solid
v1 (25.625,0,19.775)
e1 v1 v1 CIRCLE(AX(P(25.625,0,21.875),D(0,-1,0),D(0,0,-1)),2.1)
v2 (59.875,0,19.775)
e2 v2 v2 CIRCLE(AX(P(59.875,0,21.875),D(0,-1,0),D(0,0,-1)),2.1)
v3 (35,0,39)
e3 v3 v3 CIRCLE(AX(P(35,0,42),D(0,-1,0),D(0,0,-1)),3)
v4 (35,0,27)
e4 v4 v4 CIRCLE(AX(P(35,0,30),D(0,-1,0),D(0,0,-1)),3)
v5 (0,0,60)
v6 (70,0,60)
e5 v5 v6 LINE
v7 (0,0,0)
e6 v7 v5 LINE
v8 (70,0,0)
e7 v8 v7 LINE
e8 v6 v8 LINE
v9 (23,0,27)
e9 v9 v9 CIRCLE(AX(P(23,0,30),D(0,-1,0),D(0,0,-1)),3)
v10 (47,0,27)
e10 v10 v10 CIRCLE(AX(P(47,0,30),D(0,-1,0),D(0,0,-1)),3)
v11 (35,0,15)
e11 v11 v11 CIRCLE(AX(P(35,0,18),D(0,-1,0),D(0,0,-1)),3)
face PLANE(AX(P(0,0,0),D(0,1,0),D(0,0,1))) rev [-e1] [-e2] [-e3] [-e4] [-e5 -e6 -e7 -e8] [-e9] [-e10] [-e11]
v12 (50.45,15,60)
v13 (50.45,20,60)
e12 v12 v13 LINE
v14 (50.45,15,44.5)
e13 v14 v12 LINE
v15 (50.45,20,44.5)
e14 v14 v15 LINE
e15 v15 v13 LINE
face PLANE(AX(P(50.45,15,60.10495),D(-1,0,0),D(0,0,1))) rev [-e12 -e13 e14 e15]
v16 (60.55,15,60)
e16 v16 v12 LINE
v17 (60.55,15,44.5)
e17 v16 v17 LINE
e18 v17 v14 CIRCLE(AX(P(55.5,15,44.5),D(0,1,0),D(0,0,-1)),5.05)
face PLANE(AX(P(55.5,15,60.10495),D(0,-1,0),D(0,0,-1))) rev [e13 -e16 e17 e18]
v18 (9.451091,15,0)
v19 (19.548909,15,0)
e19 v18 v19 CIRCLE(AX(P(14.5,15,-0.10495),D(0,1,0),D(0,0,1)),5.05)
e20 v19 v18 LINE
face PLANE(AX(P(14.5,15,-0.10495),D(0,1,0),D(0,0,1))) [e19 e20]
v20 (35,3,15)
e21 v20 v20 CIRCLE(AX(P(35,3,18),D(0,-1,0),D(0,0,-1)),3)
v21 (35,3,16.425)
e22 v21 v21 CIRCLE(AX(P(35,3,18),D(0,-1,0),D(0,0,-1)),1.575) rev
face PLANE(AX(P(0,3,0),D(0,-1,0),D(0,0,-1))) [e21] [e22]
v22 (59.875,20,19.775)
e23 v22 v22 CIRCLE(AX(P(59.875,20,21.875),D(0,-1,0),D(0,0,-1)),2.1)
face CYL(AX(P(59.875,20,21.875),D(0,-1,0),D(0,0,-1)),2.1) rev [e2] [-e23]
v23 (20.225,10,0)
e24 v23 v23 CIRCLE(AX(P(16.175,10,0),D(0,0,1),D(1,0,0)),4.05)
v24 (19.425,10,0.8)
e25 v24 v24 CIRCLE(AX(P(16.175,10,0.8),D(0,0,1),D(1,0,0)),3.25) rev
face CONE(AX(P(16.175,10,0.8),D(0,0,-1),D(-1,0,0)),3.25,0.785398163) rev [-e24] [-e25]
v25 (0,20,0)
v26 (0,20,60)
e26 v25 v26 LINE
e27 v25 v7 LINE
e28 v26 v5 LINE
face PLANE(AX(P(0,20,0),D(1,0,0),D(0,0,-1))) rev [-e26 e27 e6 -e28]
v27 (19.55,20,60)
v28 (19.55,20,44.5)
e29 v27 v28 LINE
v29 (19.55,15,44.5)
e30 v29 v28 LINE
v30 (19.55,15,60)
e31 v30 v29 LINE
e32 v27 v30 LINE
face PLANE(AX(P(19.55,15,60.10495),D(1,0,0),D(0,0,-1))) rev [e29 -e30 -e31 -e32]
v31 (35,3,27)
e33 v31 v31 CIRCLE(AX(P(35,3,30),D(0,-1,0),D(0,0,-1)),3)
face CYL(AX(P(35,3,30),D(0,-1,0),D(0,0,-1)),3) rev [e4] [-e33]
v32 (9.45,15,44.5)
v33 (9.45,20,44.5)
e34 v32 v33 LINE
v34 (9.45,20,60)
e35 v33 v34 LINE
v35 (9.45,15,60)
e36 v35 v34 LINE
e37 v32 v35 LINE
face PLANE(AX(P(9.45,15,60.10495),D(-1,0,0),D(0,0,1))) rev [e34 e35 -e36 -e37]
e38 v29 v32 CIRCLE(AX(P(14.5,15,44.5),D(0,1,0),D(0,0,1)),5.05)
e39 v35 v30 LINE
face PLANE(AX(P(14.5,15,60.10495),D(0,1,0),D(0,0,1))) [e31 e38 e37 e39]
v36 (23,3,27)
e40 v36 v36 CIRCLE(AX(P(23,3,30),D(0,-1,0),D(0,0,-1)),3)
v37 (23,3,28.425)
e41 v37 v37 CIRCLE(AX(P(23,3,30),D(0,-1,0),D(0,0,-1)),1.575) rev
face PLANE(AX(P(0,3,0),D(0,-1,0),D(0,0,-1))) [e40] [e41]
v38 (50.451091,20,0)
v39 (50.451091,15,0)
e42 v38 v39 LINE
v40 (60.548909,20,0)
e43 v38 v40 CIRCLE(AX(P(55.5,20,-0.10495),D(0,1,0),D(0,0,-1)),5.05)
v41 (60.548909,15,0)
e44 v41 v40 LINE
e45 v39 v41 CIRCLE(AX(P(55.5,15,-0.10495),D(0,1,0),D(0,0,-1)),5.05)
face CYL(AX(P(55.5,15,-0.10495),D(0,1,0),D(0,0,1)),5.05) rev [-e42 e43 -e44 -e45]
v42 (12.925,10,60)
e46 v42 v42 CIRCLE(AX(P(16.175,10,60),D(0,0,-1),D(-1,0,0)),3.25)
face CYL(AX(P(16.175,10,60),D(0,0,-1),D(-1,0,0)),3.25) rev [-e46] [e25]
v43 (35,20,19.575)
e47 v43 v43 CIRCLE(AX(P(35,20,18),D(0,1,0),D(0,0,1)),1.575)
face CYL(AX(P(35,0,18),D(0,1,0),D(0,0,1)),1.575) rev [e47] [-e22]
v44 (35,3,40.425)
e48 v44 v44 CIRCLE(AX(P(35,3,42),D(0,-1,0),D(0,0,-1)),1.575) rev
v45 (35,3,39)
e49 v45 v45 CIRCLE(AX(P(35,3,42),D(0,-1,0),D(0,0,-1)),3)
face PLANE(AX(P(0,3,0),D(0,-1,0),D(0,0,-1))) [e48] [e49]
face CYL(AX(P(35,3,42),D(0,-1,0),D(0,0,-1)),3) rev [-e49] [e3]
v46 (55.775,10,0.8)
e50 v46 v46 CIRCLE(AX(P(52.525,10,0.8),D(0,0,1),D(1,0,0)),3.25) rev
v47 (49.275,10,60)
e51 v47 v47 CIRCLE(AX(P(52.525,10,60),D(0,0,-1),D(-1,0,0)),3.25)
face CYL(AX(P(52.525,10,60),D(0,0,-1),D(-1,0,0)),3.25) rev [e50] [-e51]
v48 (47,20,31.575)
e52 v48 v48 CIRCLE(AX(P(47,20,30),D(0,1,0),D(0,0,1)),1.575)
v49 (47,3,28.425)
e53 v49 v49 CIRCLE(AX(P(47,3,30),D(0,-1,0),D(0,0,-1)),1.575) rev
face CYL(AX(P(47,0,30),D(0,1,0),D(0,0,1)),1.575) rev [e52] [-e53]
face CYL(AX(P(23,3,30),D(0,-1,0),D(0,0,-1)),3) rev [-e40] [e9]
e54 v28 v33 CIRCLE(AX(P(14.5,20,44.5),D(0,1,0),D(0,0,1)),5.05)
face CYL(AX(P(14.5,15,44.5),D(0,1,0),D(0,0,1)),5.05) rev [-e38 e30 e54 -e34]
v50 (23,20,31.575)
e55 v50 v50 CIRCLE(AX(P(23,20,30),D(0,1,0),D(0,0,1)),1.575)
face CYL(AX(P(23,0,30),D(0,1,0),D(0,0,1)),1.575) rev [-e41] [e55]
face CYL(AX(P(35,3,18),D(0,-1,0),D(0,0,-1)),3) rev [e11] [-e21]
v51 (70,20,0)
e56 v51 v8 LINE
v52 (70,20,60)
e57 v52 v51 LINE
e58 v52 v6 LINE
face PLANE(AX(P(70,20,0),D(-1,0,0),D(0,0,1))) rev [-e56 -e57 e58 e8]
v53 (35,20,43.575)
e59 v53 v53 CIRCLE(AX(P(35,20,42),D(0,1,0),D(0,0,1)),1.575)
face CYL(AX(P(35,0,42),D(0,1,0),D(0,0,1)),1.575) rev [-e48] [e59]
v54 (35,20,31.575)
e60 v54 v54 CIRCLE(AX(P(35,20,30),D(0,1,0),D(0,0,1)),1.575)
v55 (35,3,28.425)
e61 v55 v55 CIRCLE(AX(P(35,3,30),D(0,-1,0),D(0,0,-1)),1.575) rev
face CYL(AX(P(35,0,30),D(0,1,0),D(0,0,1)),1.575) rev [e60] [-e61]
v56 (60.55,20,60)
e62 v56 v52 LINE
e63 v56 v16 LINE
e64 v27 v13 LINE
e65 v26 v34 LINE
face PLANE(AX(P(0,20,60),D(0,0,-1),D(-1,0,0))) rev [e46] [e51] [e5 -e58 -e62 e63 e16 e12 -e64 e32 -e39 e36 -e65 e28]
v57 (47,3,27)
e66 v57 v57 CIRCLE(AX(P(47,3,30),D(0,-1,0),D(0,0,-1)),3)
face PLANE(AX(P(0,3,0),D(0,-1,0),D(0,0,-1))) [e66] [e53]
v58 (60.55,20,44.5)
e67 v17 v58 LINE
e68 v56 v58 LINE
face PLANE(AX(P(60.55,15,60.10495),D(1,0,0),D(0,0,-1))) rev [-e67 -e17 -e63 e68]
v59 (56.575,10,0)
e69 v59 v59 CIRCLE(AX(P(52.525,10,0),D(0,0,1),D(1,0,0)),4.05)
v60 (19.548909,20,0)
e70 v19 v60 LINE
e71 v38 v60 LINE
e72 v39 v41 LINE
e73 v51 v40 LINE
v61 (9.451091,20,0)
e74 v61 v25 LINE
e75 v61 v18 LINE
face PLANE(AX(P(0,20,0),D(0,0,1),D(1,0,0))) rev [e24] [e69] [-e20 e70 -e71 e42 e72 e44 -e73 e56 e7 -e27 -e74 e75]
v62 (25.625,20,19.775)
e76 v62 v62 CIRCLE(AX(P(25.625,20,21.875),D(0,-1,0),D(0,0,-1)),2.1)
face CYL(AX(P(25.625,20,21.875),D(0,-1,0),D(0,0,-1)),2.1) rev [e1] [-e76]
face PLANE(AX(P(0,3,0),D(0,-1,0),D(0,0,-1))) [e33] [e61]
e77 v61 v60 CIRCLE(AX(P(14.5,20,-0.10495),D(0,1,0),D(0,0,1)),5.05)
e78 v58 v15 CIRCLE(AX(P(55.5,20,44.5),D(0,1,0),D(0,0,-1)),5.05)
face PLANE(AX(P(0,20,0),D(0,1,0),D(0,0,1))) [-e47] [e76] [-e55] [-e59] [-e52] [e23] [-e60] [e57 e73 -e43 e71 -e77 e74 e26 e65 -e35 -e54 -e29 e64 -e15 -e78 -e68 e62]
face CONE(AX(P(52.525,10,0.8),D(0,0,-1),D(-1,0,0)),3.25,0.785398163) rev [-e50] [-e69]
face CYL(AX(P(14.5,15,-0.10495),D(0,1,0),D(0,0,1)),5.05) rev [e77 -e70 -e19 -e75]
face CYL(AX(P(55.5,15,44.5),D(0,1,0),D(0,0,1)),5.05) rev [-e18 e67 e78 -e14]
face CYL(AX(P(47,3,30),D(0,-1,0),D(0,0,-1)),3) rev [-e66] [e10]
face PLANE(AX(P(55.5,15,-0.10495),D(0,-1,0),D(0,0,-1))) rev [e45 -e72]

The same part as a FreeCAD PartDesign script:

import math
import FreeCAD as App
import Part
import Sketcher
from FreeCAD import Vector
Q = App.Units.Quantity


def edges_at(feature, points):
    """Names of the edges that pass closest to the given points."""
    edges = feature.Shape.Edges
    near = lambda p: min(range(len(edges)), key=lambda i: edges[i].distToShape(Part.Vertex(*p))[0])
    return sorted({f"Edge{near(p) + 1}" for p in points})


def add_polygon(sketch, points):
    """Adds a closed chain of lines whose ends are joined by coincident constraints."""
    first, n = sketch.GeometryCount, len(points)
    for a, b in zip(points, points[1:] + points[:1]):
        sketch.addGeometry(Part.LineSegment(App.Vector(*a, 0), App.Vector(*b, 0)), False)
    for i in range(n):
        sketch.addConstraint(Sketcher.Constraint("Coincident", first + i, 2, first + (i + 1) % n, 1))

doc = App.newDocument("Part")
body = doc.addObject("PartDesign::Body", "Body")

# Sketch on XZ plane
sketch1 = doc.addObject("Sketcher::SketchObject", "Sketch")
body.addObject(sketch1)
sketch1.AttachmentSupport = (doc.XZ_Plane, [""])
sketch1.MapMode = "FlatFace"
add_polygon(sketch1, [(0, 0), (0, 60), (70, 60), (70, 0)])  # lines 0-3
sketch1.addConstraint([
    Sketcher.Constraint("Vertical", 0),
    Sketcher.Constraint("Horizontal", 1),
    Sketcher.Constraint("Vertical", 2),
    Sketcher.Constraint("Horizontal", 3),
    Sketcher.Constraint("Coincident", 3, 2, -1, 1),
    Sketcher.Constraint("DistanceX", 1, 1, 1, 2, Q("70 mm")),
    Sketcher.Constraint("DistanceY", 0, 1, 0, 2, Q("60 mm")),
])
pad1 = doc.addObject("PartDesign::Pad", "Pad")
body.addObject(pad1)
pad1.Profile = sketch1
pad1.Length = 20
pad1.Reversed = True

# Sketch on XZ plane
sketch2 = doc.addObject("Sketcher::SketchObject", "Sketch001")
body.addObject(sketch2)
sketch2.AttachmentSupport = (doc.XZ_Plane, [""])
sketch2.MapMode = "FlatFace"
sketch2.AttachmentOffset = App.Placement(Vector(0, 0, -20), App.Rotation())
sketch2.addGeometry([
    Part.Circle(Vector(35, 30, 0), Vector(0, 0, 1), 1.6),  # 0
    Part.Circle(Vector(35, 18, 0), Vector(0, 0, 1), 1.6),  # 1
    Part.Circle(Vector(47, 30, 0), Vector(0, 0, 1), 1.6),  # 2
    Part.Circle(Vector(35, 42, 0), Vector(0, 0, 1), 1.6),  # 3
    Part.Circle(Vector(23, 30, 0), Vector(0, 0, 1), 1.6),  # 4
], False)
sketch2.addConstraint([
    Sketcher.Constraint("Equal", 0, 1),
    Sketcher.Constraint("Equal", 1, 2),
    Sketcher.Constraint("Equal", 2, 3),
    Sketcher.Constraint("Equal", 3, 4),
    Sketcher.Constraint("Horizontal", 0, 3, 2, 3),
    Sketcher.Constraint("Horizontal", 2, 3, 4, 3),
    Sketcher.Constraint("Vertical", 0, 3, 1, 3),
    Sketcher.Constraint("Vertical", 1, 3, 3, 3),
    Sketcher.Constraint("Diameter", 0, Q("3.15 mm")),
    Sketcher.Constraint("DistanceX", -1, 1, 0, 3, Q("35 mm")),
    Sketcher.Constraint("DistanceY", -1, 1, 0, 3, Q("30 mm")),
    Sketcher.Constraint("DistanceY", -1, 1, 1, 3, Q("18 mm")),
    Sketcher.Constraint("DistanceX", -1, 1, 2, 3, Q("47 mm")),
    Sketcher.Constraint("DistanceY", -1, 1, 3, 3, Q("42 mm")),
    Sketcher.Constraint("DistanceX", -1, 1, 4, 3, Q("23 mm")),
])
pocket1 = doc.addObject("PartDesign::Pocket", "Pocket")
body.addObject(pocket1)
pocket1.Profile = sketch2
pocket1.Type = "ThroughAll"
pocket1.Reversed = True

# Sketch on XZ plane
sketch3 = doc.addObject("Sketcher::SketchObject", "Sketch002")
body.addObject(sketch3)
sketch3.AttachmentSupport = (doc.XZ_Plane, [""])
sketch3.MapMode = "FlatFace"
sketch3.addGeometry([
    Part.Circle(Vector(59.9, 21.9, 0), Vector(0, 0, 1), 2.1),
    Part.Circle(Vector(25.6, 21.9, 0), Vector(0, 0, 1), 2.1),
], False)
sketch3.addConstraint([
    Sketcher.Constraint("Equal", 0, 1),
    Sketcher.Constraint("Horizontal", 0, 3, 1, 3),
    Sketcher.Constraint("Diameter", 0, Q("4.2 mm")),
    Sketcher.Constraint("DistanceX", 1, 3, 0, 3, Q("34.25 mm")),
    Sketcher.Constraint("DistanceX", -1, 1, 0, 3, Q("59.875 mm")),
    Sketcher.Constraint("DistanceY", -1, 1, 0, 3, Q("21.875 mm")),
])
pocket2 = doc.addObject("PartDesign::Pocket", "Pocket001")
body.addObject(pocket2)
pocket2.Profile = sketch3
pocket2.Type = "ThroughAll"

# Sketch on XY plane
sketch4 = doc.addObject("Sketcher::SketchObject", "Sketch003")
body.addObject(sketch4)
sketch4.AttachmentSupport = (doc.XY_Plane, [""])
sketch4.MapMode = "FlatFace"
sketch4.addGeometry([
    Part.Circle(Vector(52.5, 10, 0), Vector(0, 0, 1), 3.2),
    Part.Circle(Vector(16.2, 10, 0), Vector(0, 0, 1), 3.2),
], False)
sketch4.addConstraint([
    Sketcher.Constraint("Equal", 0, 1),
    Sketcher.Constraint("Horizontal", 0, 3, 1, 3),
    Sketcher.Constraint("Diameter", 0, Q("6.5 mm")),
    Sketcher.Constraint("DistanceY", -1, 1, 0, 3, Q("10 mm")),
    Sketcher.Constraint("DistanceX", 1, 3, 0, 3, Q("36.35 mm")),
    Sketcher.Constraint("DistanceX", -1, 1, 0, 3, Q("52.525 mm")),
])
pocket3 = doc.addObject("PartDesign::Pocket", "Pocket002")
body.addObject(pocket3)
pocket3.Profile = sketch4
pocket3.Type = "ThroughAll"
pocket3.Reversed = True

# Sketch on XZ plane
sketch5 = doc.addObject("Sketcher::SketchObject", "Sketch004")
body.addObject(sketch5)
sketch5.AttachmentSupport = (doc.XZ_Plane, [""])
sketch5.MapMode = "FlatFace"
sketch5.AttachmentOffset = App.Placement(Vector(0, 0, -3), App.Rotation())
sketch5.addGeometry([
    Part.Circle(Vector(35, 18, 0), Vector(0, 0, 1), 3),  # 0
    Part.Circle(Vector(35, 30, 0), Vector(0, 0, 1), 3),  # 1
    Part.Circle(Vector(47, 30, 0), Vector(0, 0, 1), 3),  # 2
    Part.Circle(Vector(23, 30, 0), Vector(0, 0, 1), 3),  # 3
    Part.Circle(Vector(35, 42, 0), Vector(0, 0, 1), 3),  # 4
], False)
sketch5.addConstraint([
    Sketcher.Constraint("Equal", 0, 1),
    Sketcher.Constraint("Equal", 1, 2),
    Sketcher.Constraint("Equal", 2, 3),
    Sketcher.Constraint("Equal", 3, 4),
    Sketcher.Constraint("Horizontal", 1, 3, 2, 3),
    Sketcher.Constraint("Horizontal", 2, 3, 3, 3),
    Sketcher.Constraint("Vertical", 0, 3, 1, 3),
    Sketcher.Constraint("Vertical", 1, 3, 4, 3),
    Sketcher.Constraint("Diameter", 0, Q("6 mm")),
    Sketcher.Constraint("DistanceX", -1, 1, 0, 3, Q("35 mm")),
    Sketcher.Constraint("DistanceY", -1, 1, 0, 3, Q("18 mm")),
    Sketcher.Constraint("DistanceY", -1, 1, 1, 3, Q("30 mm")),
    Sketcher.Constraint("DistanceX", -1, 1, 2, 3, Q("47 mm")),
    Sketcher.Constraint("DistanceX", -1, 1, 3, 3, Q("23 mm")),
    Sketcher.Constraint("DistanceY", -1, 1, 4, 3, Q("42 mm")),
])
pocket4 = doc.addObject("PartDesign::Pocket", "Pocket003")
body.addObject(pocket4)
pocket4.Profile = sketch5
pocket4.Length = 3
pocket4.Reversed = True
doc.recompute()

chamfer = doc.addObject("PartDesign::Chamfer", "Chamfer")
body.addObject(chamfer)
chamfer.Base = (pocket4, edges_at(pocket4, [(55.775, 10, 0), (19.425, 10, 0)]))
chamfer.Size = 0.8

# Sketch on XZ plane
sketch6 = doc.addObject("Sketcher::SketchObject", "Sketch005")
body.addObject(sketch6)
sketch6.AttachmentSupport = (doc.XZ_Plane, [""])
sketch6.MapMode = "FlatFace"
sketch6.AttachmentOffset = App.Placement(Vector(0, 0, -20), App.Rotation())
sketch6.addGeometry([
    Part.Circle(Vector(14, 0, 0), Vector(0, 0, 1), 5),  # 0
    Part.Circle(Vector(56, 0, 0), Vector(0, 0, 1), 5),  # 1
    Part.LineSegment(Vector(9, 44, 0), Vector(9, 60, 0)),  # 2
    Part.ArcOfCircle(Part.Circle(Vector(14, 60, 0), Vector(0, 0, 1), 5), math.radians(0), math.radians(180)),  # 3
    Part.LineSegment(Vector(20, 60, 0), Vector(20, 44, 0)),  # 4
    Part.ArcOfCircle(Part.Circle(Vector(14, 44, 0), Vector(0, 0, 1), 5), math.radians(180), math.radians(360)),  # 5
    Part.LineSegment(Vector(61, 60, 0), Vector(61, 44, 0)),  # 6
    Part.ArcOfCircle(Part.Circle(Vector(56, 44, 0), Vector(0, 0, 1), 5), math.radians(180), math.radians(360)),  # 7
    Part.LineSegment(Vector(50, 44, 0), Vector(50, 60, 0)),  # 8
    Part.ArcOfCircle(Part.Circle(Vector(56, 60, 0), Vector(0, 0, 1), 5), math.radians(0), math.radians(180)),  # 9
], False)
sketch6.addConstraint([
    Sketcher.Constraint("Tangent", 2, 2, 3, 2),
    Sketcher.Constraint("Tangent", 3, 1, 4, 1),
    Sketcher.Constraint("Tangent", 4, 2, 5, 2),
    Sketcher.Constraint("Tangent", 5, 1, 2, 1),
    Sketcher.Constraint("Tangent", 6, 2, 7, 2),
    Sketcher.Constraint("Tangent", 7, 1, 8, 1),
    Sketcher.Constraint("Tangent", 8, 2, 9, 2),
    Sketcher.Constraint("Tangent", 9, 1, 6, 1),
    Sketcher.Constraint("Vertical", 2),
    Sketcher.Constraint("Vertical", 4),
    Sketcher.Constraint("Vertical", 6),
    Sketcher.Constraint("Vertical", 8),
    Sketcher.Constraint("Equal", 0, 1),
    Sketcher.Constraint("Equal", 1, 3),
    Sketcher.Constraint("Equal", 5, 7),
    Sketcher.Constraint("Horizontal", 0, 3, 1, 3),
    Sketcher.Constraint("Horizontal", 5, 3, 7, 3),
    Sketcher.Constraint("Horizontal", 3, 3, 9, 3),
    Sketcher.Constraint("Vertical", 0, 3, 3, 3),
    Sketcher.Constraint("Vertical", 1, 3, 7, 3),
    Sketcher.Constraint("Diameter", 0, Q("10.1 mm")),
    Sketcher.Constraint("DistanceX", 0, 3, 1, 3, Q("41 mm")),
    Sketcher.Constraint("DistanceX", -1, 1, 0, 3, Q("14.5 mm")),
    Sketcher.Constraint("DistanceY", -1, 1, 5, 3, Q("44.5 mm")),
    Sketcher.Constraint("DistanceY", 2, 1, 2, 2, Q("15.60495 mm")),
    Sketcher.Constraint("DistanceY", 0, 3, 3, 3, Q("60.209899 mm")),
])
pocket5 = doc.addObject("PartDesign::Pocket", "Pocket004")
body.addObject(pocket5)
pocket5.Profile = sketch6
pocket5.Length = 5
pocket5.Reversed = True

doc.recompute()
